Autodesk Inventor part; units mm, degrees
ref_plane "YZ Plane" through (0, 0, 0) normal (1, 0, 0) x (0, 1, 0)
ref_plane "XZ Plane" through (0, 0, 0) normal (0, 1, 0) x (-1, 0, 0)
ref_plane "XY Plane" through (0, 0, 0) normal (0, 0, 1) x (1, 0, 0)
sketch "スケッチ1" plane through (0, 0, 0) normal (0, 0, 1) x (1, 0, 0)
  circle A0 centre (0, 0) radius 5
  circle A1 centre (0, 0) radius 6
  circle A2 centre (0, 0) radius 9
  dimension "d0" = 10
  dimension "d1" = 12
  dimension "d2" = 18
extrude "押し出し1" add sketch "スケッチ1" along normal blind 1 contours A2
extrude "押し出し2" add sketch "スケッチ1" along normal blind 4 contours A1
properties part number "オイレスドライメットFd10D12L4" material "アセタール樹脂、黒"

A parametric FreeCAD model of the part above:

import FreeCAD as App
import Part
import Sketcher
from FreeCAD import Vector

doc = App.newDocument("Part")
body = doc.addObject("PartDesign::Body", "Body")

# Sketch on XY plane
sketch1 = body.newObject("Sketcher::SketchObject", "Sketch")
sketch1.AttachmentSupport = (doc.getObject("XY_Plane"), [""])
sketch1.MapMode = "FlatFace"
sketch1.addGeometry(Part.Circle(Vector(0, 0, 0), Vector(0, 0, 1), 9), False)
sketch1.addGeometry(Part.Circle(Vector(0, 0, 0), Vector(0, 0, 1), 6), False)
sketch1.addConstraint(Sketcher.Constraint("Coincident", 0, 3, -1, 1))
sketch1.addConstraint(Sketcher.Constraint("Coincident", 1, 3, -1, 1))
sketch1.addConstraint(Sketcher.Constraint("Diameter", 0, 18.0))
sketch1.addConstraint(Sketcher.Constraint("Diameter", 1, 12.0))
pad1 = body.newObject("PartDesign::Pad", "Pad")
pad1.Profile = sketch1
pad1.Length = 1

# Sketch on XY plane
sketch2 = body.newObject("Sketcher::SketchObject", "Sketch001")
sketch2.AttachmentSupport = (doc.getObject("XY_Plane"), [""])
sketch2.MapMode = "FlatFace"
sketch2.addGeometry(Part.Circle(Vector(0, 0, 0), Vector(0, 0, 1), 6), False)
sketch2.addGeometry(Part.Circle(Vector(0, 0, 0), Vector(0, 0, 1), 5), False)
sketch2.addConstraint(Sketcher.Constraint("Coincident", 0, 3, -1, 1))
sketch2.addConstraint(Sketcher.Constraint("Coincident", 1, 3, -1, 1))
sketch2.addConstraint(Sketcher.Constraint("Diameter", 0, 12.0))
sketch2.addConstraint(Sketcher.Constraint("Diameter", 1, 10.0))
pad2 = body.newObject("PartDesign::Pad", "Pad001")
pad2.Profile = sketch2
pad2.Length = 4

doc.recompute()
